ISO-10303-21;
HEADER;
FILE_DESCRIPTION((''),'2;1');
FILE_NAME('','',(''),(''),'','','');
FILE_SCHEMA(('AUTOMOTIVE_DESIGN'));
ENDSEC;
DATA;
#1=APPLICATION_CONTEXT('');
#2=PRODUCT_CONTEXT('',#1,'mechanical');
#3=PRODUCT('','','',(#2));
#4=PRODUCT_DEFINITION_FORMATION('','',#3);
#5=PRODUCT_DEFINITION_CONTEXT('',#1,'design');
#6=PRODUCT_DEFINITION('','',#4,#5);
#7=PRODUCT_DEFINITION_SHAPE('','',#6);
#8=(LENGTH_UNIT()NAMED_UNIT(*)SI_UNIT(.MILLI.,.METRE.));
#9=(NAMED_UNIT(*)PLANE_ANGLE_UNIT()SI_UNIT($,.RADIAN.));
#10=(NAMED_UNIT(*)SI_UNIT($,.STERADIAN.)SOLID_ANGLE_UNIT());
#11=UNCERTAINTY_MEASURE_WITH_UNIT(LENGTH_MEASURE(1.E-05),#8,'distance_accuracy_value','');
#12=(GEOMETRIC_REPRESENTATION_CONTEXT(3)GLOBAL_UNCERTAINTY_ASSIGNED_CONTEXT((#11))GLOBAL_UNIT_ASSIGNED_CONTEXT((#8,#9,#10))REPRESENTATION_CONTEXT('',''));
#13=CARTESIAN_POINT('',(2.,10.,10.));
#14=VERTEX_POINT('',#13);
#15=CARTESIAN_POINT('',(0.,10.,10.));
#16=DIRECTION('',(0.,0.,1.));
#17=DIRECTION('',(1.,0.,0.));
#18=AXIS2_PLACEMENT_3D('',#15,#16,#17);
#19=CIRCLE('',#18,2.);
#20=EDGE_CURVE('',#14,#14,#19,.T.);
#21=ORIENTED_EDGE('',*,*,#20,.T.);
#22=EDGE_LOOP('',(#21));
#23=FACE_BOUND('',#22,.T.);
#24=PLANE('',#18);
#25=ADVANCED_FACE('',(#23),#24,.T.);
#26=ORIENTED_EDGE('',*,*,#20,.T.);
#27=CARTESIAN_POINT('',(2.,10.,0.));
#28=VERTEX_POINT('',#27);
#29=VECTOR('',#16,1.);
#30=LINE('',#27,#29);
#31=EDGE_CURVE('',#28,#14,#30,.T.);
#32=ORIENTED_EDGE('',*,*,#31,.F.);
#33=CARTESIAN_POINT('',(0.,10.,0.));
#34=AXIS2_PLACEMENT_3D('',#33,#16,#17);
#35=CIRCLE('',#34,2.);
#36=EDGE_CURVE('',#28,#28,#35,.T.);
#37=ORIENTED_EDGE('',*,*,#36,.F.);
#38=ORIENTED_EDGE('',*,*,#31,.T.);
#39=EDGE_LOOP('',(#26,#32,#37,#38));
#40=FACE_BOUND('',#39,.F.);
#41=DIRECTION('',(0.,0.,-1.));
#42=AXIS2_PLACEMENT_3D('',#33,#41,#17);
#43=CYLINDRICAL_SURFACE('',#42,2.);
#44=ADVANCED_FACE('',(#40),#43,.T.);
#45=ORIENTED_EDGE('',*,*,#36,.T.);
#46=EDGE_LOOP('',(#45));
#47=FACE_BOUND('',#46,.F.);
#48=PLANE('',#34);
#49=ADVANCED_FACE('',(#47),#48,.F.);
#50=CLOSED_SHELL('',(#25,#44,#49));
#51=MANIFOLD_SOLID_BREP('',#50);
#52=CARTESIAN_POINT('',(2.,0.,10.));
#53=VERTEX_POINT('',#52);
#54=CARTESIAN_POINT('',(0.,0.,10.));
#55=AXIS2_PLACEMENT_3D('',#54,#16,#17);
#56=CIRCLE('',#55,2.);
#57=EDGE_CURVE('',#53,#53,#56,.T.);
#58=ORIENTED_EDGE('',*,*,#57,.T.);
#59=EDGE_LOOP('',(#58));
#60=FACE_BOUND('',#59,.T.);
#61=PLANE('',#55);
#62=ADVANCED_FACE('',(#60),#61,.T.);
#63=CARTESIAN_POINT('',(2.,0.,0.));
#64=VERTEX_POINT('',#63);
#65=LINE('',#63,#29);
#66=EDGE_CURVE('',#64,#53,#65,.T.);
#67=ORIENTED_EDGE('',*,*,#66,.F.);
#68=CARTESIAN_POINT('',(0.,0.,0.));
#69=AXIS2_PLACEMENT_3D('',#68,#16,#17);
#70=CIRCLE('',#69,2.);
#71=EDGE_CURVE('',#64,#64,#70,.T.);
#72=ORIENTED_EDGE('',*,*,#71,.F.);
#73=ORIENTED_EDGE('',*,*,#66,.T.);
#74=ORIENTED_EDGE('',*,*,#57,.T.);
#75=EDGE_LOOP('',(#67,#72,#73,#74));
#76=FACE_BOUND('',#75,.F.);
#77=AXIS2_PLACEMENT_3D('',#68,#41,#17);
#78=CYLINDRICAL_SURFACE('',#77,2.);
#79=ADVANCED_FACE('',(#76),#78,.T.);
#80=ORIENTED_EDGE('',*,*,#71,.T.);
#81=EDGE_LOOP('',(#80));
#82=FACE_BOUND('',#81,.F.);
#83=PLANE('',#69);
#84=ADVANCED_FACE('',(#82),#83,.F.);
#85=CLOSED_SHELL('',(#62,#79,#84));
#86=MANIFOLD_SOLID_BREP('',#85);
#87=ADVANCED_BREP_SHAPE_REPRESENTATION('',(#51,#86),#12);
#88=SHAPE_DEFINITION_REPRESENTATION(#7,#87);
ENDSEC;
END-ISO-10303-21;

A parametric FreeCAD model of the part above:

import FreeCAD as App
import Part
import Sketcher

V = App.Vector
Q = App.Units.Quantity

doc = App.newDocument("Part")
body = doc.addObject("PartDesign::Body", "Body")

# Sketch on XY plane
sketch1 = doc.addObject("Sketcher::SketchObject", "Sketch")
body.addObject(sketch1)
sketch1.AttachmentSupport = (doc.XY_Plane, [""])
sketch1.MapMode = "FlatFace"
sketch1.addGeometry(Part.Circle(V(0, 10, 0), V(0, 0, 1), 2), False)
sketch1.addConstraint([
    Sketcher.Constraint("PointOnObject", 0, 3, -2),
    Sketcher.Constraint("Diameter", 0, Q("4 mm")),
    Sketcher.Constraint("DistanceY", -1, 1, 0, 3, Q("10 mm")),
])
pad1 = doc.addObject("PartDesign::Pad", "Pad")
body.addObject(pad1)
pad1.Profile = sketch1
pad1.Length = 10
body2 = doc.addObject("PartDesign::Body", "Body001")
body2.AllowCompound = True

# Sketch on XY plane
sketch2 = doc.addObject("Sketcher::SketchObject", "Sketch001")
body2.addObject(sketch2)
sketch2.AttachmentSupport = (doc.getObject("XY_Plane001"), [""])
sketch2.MapMode = "FlatFace"
sketch2.addGeometry(Part.Circle(V(0, 0, 0), V(0, 0, 1), 2), False)
sketch2.addConstraint([
    Sketcher.Constraint("Coincident", 0, 3, -1, 1),
    Sketcher.Constraint("Diameter", 0, Q("4 mm")),
])
pad2 = doc.addObject("PartDesign::Pad", "Pad001")
body2.addObject(pad2)
pad2.Profile = sketch2
pad2.Length = 10
doc.recompute()

boolean = doc.addObject("PartDesign::Boolean", "Boolean")
body2.addObject(boolean)
boolean.Type = "Fuse"
boolean.addObjects([body])

doc.recompute()
